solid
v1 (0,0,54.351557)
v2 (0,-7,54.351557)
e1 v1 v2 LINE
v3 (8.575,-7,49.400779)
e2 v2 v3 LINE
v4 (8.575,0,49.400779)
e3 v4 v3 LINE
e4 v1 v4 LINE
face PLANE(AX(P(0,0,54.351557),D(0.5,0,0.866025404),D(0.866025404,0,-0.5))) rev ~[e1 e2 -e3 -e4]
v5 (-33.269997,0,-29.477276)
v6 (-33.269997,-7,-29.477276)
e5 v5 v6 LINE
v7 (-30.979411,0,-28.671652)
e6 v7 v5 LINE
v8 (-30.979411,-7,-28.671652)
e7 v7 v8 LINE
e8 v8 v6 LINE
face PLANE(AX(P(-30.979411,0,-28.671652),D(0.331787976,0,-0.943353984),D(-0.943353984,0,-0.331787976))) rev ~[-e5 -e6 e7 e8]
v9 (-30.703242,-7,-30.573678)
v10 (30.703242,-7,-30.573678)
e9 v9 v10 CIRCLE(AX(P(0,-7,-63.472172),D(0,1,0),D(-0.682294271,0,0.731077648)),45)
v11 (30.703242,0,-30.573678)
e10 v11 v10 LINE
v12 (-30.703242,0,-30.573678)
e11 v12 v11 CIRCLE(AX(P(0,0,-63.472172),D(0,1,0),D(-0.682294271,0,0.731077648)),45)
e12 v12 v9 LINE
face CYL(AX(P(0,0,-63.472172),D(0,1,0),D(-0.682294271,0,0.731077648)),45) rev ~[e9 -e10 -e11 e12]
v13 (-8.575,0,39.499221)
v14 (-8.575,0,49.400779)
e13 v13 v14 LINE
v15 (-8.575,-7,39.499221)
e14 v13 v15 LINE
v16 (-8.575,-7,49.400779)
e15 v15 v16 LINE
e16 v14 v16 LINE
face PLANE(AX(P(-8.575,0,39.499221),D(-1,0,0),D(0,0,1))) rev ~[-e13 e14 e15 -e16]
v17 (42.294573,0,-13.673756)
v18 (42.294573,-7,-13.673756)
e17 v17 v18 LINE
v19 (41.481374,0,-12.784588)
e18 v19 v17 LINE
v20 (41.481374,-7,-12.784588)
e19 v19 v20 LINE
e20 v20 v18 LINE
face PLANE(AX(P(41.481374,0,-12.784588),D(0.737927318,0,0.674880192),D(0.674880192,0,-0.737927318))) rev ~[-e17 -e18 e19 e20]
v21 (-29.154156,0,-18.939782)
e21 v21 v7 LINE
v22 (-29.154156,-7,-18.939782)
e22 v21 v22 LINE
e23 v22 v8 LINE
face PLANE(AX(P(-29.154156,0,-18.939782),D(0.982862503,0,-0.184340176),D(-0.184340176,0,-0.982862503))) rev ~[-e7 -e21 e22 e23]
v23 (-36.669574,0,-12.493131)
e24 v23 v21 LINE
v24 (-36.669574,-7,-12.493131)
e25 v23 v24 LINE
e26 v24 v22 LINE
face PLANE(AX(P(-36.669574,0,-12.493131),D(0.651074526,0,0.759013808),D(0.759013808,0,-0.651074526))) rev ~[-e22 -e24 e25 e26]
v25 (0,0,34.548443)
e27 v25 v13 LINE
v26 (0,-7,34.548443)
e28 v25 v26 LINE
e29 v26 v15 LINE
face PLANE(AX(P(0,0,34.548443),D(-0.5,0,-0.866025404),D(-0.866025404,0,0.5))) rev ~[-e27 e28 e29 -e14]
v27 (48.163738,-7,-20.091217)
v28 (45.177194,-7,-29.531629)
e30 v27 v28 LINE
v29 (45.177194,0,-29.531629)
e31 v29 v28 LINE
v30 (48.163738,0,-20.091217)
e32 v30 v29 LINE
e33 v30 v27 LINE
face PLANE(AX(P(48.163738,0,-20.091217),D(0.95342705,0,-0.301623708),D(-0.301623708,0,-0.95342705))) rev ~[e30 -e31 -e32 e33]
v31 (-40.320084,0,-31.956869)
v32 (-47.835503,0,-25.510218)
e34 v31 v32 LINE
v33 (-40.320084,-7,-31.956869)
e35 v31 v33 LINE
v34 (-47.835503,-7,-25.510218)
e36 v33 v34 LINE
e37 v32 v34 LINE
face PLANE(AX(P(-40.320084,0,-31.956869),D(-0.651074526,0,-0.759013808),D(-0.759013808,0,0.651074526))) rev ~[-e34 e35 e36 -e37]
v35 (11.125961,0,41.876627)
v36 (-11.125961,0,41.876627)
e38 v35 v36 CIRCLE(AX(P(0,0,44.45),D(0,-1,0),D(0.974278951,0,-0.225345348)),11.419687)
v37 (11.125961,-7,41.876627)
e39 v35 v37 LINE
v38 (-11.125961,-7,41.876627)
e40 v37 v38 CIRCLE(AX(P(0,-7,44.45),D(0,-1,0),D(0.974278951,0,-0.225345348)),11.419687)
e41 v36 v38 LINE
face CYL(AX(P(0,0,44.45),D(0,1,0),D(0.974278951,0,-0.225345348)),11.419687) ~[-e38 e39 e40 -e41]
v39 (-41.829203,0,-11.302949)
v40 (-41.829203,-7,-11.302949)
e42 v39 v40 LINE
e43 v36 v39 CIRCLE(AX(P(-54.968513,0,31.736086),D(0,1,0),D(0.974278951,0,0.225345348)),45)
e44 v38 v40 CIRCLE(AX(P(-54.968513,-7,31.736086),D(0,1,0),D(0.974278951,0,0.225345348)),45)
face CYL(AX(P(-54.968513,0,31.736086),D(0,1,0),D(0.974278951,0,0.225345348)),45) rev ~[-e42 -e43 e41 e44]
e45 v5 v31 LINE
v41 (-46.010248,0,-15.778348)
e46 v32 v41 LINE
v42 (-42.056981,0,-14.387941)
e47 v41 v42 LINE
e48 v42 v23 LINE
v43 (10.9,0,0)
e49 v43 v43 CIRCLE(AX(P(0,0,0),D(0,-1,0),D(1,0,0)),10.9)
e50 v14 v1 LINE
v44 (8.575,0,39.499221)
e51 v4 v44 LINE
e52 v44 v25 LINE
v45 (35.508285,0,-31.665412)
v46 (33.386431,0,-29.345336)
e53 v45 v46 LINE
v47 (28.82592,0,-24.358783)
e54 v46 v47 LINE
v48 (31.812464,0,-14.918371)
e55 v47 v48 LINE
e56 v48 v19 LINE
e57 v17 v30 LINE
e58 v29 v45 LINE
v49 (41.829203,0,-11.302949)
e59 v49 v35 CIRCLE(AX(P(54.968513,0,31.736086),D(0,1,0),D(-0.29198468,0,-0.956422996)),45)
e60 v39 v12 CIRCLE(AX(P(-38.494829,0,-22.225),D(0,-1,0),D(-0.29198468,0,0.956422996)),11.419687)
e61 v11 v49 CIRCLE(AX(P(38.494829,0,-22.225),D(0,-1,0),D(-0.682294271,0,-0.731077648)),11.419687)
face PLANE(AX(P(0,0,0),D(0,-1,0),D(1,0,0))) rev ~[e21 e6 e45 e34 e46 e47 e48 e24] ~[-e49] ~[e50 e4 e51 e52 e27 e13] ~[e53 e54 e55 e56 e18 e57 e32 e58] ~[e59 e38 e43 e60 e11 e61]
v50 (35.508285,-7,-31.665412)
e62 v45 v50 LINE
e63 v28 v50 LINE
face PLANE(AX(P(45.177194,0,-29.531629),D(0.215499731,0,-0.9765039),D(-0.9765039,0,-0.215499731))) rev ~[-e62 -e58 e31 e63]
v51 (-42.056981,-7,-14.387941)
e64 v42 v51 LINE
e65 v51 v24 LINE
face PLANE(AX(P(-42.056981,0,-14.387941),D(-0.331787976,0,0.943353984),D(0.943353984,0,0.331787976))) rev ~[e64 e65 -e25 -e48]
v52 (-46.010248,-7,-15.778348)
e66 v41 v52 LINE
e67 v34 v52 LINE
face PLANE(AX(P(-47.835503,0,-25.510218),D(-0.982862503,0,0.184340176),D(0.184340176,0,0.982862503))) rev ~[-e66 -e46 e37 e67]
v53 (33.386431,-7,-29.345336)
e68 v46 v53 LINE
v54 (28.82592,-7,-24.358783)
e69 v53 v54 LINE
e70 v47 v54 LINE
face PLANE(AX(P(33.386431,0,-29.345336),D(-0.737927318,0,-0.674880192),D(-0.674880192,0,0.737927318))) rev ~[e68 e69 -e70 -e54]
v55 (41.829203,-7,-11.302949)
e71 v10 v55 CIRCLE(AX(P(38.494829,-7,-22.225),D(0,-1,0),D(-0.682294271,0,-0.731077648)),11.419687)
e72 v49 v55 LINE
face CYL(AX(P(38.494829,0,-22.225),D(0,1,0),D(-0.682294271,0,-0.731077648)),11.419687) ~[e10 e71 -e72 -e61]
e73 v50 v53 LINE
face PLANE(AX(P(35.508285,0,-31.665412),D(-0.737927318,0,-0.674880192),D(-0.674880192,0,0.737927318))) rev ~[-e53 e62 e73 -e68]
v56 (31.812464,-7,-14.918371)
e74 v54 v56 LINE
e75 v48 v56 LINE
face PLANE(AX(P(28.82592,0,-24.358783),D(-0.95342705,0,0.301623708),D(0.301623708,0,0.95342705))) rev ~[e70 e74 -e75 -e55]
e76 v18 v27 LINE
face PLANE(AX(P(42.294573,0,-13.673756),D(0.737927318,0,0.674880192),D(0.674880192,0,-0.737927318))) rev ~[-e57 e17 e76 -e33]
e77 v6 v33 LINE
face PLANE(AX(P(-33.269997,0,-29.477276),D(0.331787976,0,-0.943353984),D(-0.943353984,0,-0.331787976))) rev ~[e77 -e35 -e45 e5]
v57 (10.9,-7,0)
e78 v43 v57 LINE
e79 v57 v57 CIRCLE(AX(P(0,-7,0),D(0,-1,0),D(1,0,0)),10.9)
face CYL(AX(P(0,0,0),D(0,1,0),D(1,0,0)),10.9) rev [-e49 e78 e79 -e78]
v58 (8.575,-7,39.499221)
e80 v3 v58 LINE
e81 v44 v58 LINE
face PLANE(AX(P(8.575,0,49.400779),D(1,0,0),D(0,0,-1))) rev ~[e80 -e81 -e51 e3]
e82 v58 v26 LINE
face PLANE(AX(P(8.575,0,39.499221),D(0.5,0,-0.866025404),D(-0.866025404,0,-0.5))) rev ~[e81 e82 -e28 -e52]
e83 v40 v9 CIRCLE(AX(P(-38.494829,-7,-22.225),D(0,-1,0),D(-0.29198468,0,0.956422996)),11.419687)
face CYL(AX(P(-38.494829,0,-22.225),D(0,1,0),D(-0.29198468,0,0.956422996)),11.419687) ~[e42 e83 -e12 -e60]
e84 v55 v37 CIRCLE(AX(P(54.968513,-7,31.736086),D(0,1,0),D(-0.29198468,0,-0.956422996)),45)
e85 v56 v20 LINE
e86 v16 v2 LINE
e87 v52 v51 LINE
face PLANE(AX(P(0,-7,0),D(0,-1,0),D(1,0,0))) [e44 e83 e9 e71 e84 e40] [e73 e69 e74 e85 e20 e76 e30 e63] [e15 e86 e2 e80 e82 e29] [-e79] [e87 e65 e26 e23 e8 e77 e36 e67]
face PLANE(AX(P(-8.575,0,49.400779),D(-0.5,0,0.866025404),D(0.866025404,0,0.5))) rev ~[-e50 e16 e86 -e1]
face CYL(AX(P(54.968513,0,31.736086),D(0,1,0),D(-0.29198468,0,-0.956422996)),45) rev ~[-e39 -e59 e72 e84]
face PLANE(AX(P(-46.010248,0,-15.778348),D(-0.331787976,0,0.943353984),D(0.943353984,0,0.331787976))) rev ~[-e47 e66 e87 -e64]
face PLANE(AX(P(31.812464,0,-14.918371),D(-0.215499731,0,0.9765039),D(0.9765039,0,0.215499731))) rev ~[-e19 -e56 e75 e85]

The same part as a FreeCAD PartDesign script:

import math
import FreeCAD as App
import Part
import Sketcher

V = App.Vector
Q = App.Units.Quantity


def add_polygon(sketch, points):
    """Adds a closed chain of lines whose ends are joined by coincident constraints."""
    first, n = sketch.GeometryCount, len(points)
    for a, b in zip(points, points[1:] + points[:1]):
        sketch.addGeometry(Part.LineSegment(App.Vector(*a, 0), App.Vector(*b, 0)), False)
    for i in range(n):
        sketch.addConstraint(Sketcher.Constraint("Coincident", first + i, 2, first + (i + 1) % n, 1))

doc = App.newDocument("Part")
body = doc.addObject("PartDesign::Body", "Body")

# Sketch on XZ plane
sketch1 = doc.addObject("Sketcher::SketchObject", "Sketch")
body.addObject(sketch1)
sketch1.AttachmentSupport = (doc.XZ_Plane, [""])
sketch1.MapMode = "FlatFace"
sketch1.addGeometry(Part.ArcOfCircle(Part.Circle(V(54.968513, 31.736086, 0), V(0, 0, 1), 45), math.radians(166.976813), math.radians(253.023187)), False)  # 0
sketch1.addGeometry(Part.ArcOfCircle(Part.Circle(V(0, 44.45, 0), V(0, 0, 1), 11.419687), math.radians(-13.023187), math.radians(193.023187)), False)  # 1
sketch1.addGeometry(Part.ArcOfCircle(Part.Circle(V(-54.968513, 31.736086, 0), V(0, 0, 1), 45), math.radians(-73.023187), math.radians(13.023187)), False)  # 2
sketch1.addGeometry(Part.ArcOfCircle(Part.Circle(V(-38.494829, -22.225, 0), V(0, 0, 1), 11.419687), math.radians(106.976813), math.radians(313.023187)), False)  # 3
sketch1.addGeometry(Part.ArcOfCircle(Part.Circle(V(0, -63.472172, 0), V(0, 0, 1), 45), math.radians(46.976813), math.radians(133.023187)), False)  # 4
sketch1.addGeometry(Part.ArcOfCircle(Part.Circle(V(38.494829, -22.225, 0), V(0, 0, 1), 11.419687), math.radians(-133.023187), math.radians(73.023187)), False)  # 5
add_polygon(sketch1, [(-42.056981, -14.387941), (-36.669574, -12.493131), (-29.154156, -18.939782), (-30.979411, -28.671652), (-33.269997, -29.477276), (-40.320084, -31.956869), (-47.835503, -25.510218), (-46.010248, -15.778348)])  # lines 6-13
sketch1.addGeometry(Part.Circle(V(0, 0, 0), V(0, 0, 1), 10.9), False)  # 14
add_polygon(sketch1, [(41.481374, -12.784588), (42.294573, -13.673756), (48.163738, -20.091217), (45.177194, -29.531629), (35.508285, -31.665412), (33.386431, -29.345336), (28.82592, -24.358783), (31.812464, -14.918371)])  # lines 15-22
add_polygon(sketch1, [(-8.575, 49.400779), (0, 54.351557), (8.575, 49.400779), (8.575, 39.499221), (0, 34.548443), (-8.575, 39.499221)])  # lines 23-28
sketch1.addConstraint([
    Sketcher.Constraint("Coincident", 0, 1, 1, 1),
    Sketcher.Constraint("Coincident", 1, 2, 2, 2),
    Sketcher.Constraint("Coincident", 2, 1, 3, 1),
    Sketcher.Constraint("Coincident", 3, 2, 4, 2),
    Sketcher.Constraint("Coincident", 4, 1, 5, 1),
    Sketcher.Constraint("Coincident", 5, 2, 0, 2),
    Sketcher.Constraint("Vertical", 25),
    Sketcher.Constraint("Vertical", 28),
    Sketcher.Constraint("Coincident", 14, 3, -1, 1),
    Sketcher.Constraint("PointOnObject", 1, 3, -2),
    Sketcher.Constraint("PointOnObject", 4, 3, -2),
    Sketcher.Constraint("PointOnObject", 23, 2, -2),
    Sketcher.Constraint("PointOnObject", 26, 2, -2),
    Sketcher.Constraint("Radius", 0, Q("45 mm")),
    Sketcher.Constraint("Radius", 2, Q("45 mm")),
    Sketcher.Constraint("Radius", 4, Q("45 mm")),
    Sketcher.Constraint("Diameter", 14, Q("21.8 mm")),
    Sketcher.Constraint("DistanceY", -1, 1, 1, 3, Q("44.45 mm")),
    Sketcher.Constraint("DistanceX", 27, 2, 25, 2, Q("17.15 mm")),
    Sketcher.Constraint("DistanceY", 3, 3, -1, 1, Q("22.225 mm")),
    Sketcher.Constraint("DistanceY", 5, 3, -1, 1, Q("22.225 mm")),
    Sketcher.Constraint("DistanceX", -1, 1, 24, 2, Q("8.575 mm")),
    Sketcher.Constraint("Radius", 1, Q("11.419687 mm")),
    Sketcher.Constraint("Radius", 3, Q("11.419687 mm")),
    Sketcher.Constraint("Radius", 5, Q("11.419687 mm")),
    Sketcher.Constraint("DistanceY", 3, 2, 9, 2, Q("1.096402 mm")),
    Sketcher.Constraint("DistanceX", 11, 2, 2, 1, Q("6.0063 mm")),
    Sketcher.Constraint("DistanceY", 12, 2, 2, 1, Q("4.4754 mm")),
    Sketcher.Constraint("DistanceX", 19, 2, 5, 3, Q("5.108398 mm")),
    Sketcher.Constraint("DistanceX", 22, 2, 15, 2, Q("0.813199 mm")),
    Sketcher.Constraint("Distance", 9, Q("2.42813 mm")),
    Sketcher.Constraint("Distance", 13, Q("4.19065 mm")),
    Sketcher.Constraint("Distance", 20, Q("6.757512 mm")),
    Sketcher.Constraint("DistanceY", 25, 2, 25, 1, Q("9.901557 mm")),
    Sketcher.Constraint("DistanceY", 28, 1, 28, 2, Q("9.901557 mm")),
    Sketcher.Constraint("DistanceX", 3, 3, -1, 1, Q("38.494829 mm")),
    Sketcher.Constraint("DistanceX", -1, 1, 0, 1, Q("11.125961 mm")),
    Sketcher.Constraint("DistanceX", 1, 2, -1, 1, Q("11.125961 mm")),
    Sketcher.Constraint("DistanceY", 2, 1, -1, 1, Q("11.302949 mm")),
    Sketcher.Constraint("DistanceY", 5, 2, -1, 1, Q("11.302949 mm")),
    Sketcher.Constraint("DistanceY", 6, 2, -1, 1, Q("12.493131 mm")),
    Sketcher.Constraint("DistanceX", 8, 2, -1, 1, Q("30.979411 mm")),
    Sketcher.Constraint("DistanceY", 8, 2, -1, 1, Q("28.671652 mm")),
    Sketcher.Constraint("DistanceY", 10, 2, -1, 1, Q("31.956869 mm")),
    Sketcher.Constraint("DistanceX", 13, 2, -1, 1, Q("42.056981 mm")),
    Sketcher.Constraint("DistanceY", 13, 2, -1, 1, Q("14.387941 mm")),
    Sketcher.Constraint("DistanceX", -1, 1, 16, 2, Q("48.163738 mm")),
    Sketcher.Constraint("DistanceY", 17, 2, -1, 1, Q("29.531629 mm")),
    Sketcher.Constraint("DistanceX", -1, 1, 20, 2, Q("28.82592 mm")),
    Sketcher.Constraint("DistanceY", 21, 2, -1, 1, Q("14.918371 mm")),
    Sketcher.Constraint("DistanceY", -1, 1, 24, 2, Q("49.400779 mm")),
    Sketcher.Constraint("DistanceY", -1, 1, 27, 2, Q("39.499221 mm")),
    Sketcher.Constraint("DistanceX", 2, 1, 3, 2, Q("11.125961 mm")),
    Sketcher.Constraint("DistanceX", 4, 1, 0, 3, Q("24.265271 mm")),
    Sketcher.Constraint("DistanceX", 2, 1, 6, 2, Q("5.159628 mm")),
    Sketcher.Constraint("DistanceX", 6, 2, 7, 2, Q("7.515419 mm")),
    Sketcher.Constraint("DistanceY", 7, 2, 6, 2, Q("6.446652 mm")),
    Sketcher.Constraint("DistanceX", 10, 2, 3, 2, Q("9.616842 mm")),
    Sketcher.Constraint("DistanceY", 10, 2, 11, 2, Q("6.446652 mm")),
    Sketcher.Constraint("DistanceX", 5, 2, 15, 2, Q("0.46537 mm")),
    Sketcher.Constraint("DistanceY", 15, 2, 0, 3, Q("45.409842 mm")),
    Sketcher.Constraint("DistanceY", 16, 2, 15, 2, Q("6.417461 mm")),
    Sketcher.Constraint("DistanceX", 4, 1, 17, 2, Q("14.473952 mm")),
    Sketcher.Constraint("DistanceX", 18, 2, 17, 2, Q("9.668909 mm")),
    Sketcher.Constraint("DistanceY", 19, 2, 16, 2, Q("9.254118 mm")),
    Sketcher.Constraint("DistanceY", 18, 2, 20, 2, Q("7.306629 mm")),
    Sketcher.Constraint("DistanceX", 21, 2, 15, 2, Q("10.482109 mm")),
    Sketcher.Constraint("DistanceY", 15, 2, 22, 2, Q("0.889168 mm")),
    Sketcher.Constraint("DistanceY", 1, 2, 23, 2, Q("12.47493 mm")),
    Sketcher.Constraint("DistanceY", 26, 2, 25, 2, Q("4.950779 mm")),
])
pad1 = doc.addObject("PartDesign::Pad", "Pad")
body.addObject(pad1)
pad1.Profile = sketch1
pad1.Length = 7

doc.recompute()
